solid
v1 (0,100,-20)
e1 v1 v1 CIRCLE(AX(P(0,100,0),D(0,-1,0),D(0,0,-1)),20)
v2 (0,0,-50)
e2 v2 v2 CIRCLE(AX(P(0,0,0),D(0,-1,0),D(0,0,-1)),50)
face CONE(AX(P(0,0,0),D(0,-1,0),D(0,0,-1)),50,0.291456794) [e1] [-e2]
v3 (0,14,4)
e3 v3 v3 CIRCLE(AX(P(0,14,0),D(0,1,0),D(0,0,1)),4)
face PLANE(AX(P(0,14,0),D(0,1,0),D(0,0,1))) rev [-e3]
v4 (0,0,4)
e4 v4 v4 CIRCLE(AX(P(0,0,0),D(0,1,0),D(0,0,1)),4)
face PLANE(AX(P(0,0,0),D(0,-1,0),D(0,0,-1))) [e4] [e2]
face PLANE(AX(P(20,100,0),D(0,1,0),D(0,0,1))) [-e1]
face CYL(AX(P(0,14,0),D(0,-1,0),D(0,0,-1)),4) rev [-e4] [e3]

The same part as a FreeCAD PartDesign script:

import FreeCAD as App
import Part
import Sketcher
from FreeCAD import Vector
Q = App.Units.Quantity


def add_polygon(sketch, points):
    """Adds a closed chain of lines whose ends are joined by coincident constraints."""
    first, n = sketch.GeometryCount, len(points)
    for a, b in zip(points, points[1:] + points[:1]):
        sketch.addGeometry(Part.LineSegment(App.Vector(*a, 0), App.Vector(*b, 0)), False)
    for i in range(n):
        sketch.addConstraint(Sketcher.Constraint("Coincident", first + i, 2, first + (i + 1) % n, 1))

doc = App.newDocument("Part")
params = doc.addObject("Spreadsheet::Sheet", "Params")
for row, (alias, value) in enumerate([
    ("sketch1_width", "50 mm"),
    ("sketch1_width2", "20 mm"),
    ("sketch1_height", "100 mm"),
    ("revolution_angle", "360 deg"),
    ("sketch2_diameter", "8 mm"),
    ("pocket1_length", "14 mm"),
], start=1):
    params.set(f"A{row}", alias)
    params.set(f"B{row}", "=" + value)
    params.setAlias(f"B{row}", alias)

body = doc.addObject("PartDesign::Body", "Body")

# Sketch on XY plane
sketch1 = body.newObject("Sketcher::SketchObject", "Sketch")
sketch1.AttachmentSupport = (doc.getObject("XY_Plane"), [""])
sketch1.MapMode = "FlatFace"
add_polygon(sketch1, [(0, 0), (50, 0), (20, 100), (0, 100)])  # lines 0-3
sketch1.addConstraint([
    Sketcher.Constraint("Horizontal", 0),
    Sketcher.Constraint("Horizontal", 2),
    Sketcher.Constraint("Vertical", 3),
    Sketcher.Constraint("Coincident", 3, 2, -1, 1),
    Sketcher.Constraint("DistanceX", 0, 1, 0, 2, Q("50 mm")),
    Sketcher.Constraint("DistanceX", 2, 2, 2, 1, Q("20 mm")),
    Sketcher.Constraint("DistanceY", 3, 2, 3, 1, Q("100 mm")),
])
sketch1.setExpression("Constraints[8]", "Params.sketch1_width")
sketch1.setExpression("Constraints[9]", "Params.sketch1_width2")
sketch1.setExpression("Constraints[10]", "Params.sketch1_height")
revolution = body.newObject("PartDesign::Revolution", "Revolution")
revolution.Profile = sketch1
revolution.ReferenceAxis = (sketch1, ["V_Axis"])
revolution.setExpression("Angle", "Params.revolution_angle")

# Sketch on XZ plane
sketch2 = body.newObject("Sketcher::SketchObject", "Sketch001")
sketch2.AttachmentSupport = (doc.getObject("XZ_Plane"), [""])
sketch2.MapMode = "FlatFace"
sketch2.addGeometry(Part.Circle(Vector(0, 0, 0), Vector(0, 0, 1), 4), False)
sketch2.addConstraint([
    Sketcher.Constraint("Coincident", 0, 3, -1, 1),
    Sketcher.Constraint("Diameter", 0, Q("8 mm")),
])
sketch2.setExpression("Constraints[1]", "Params.sketch2_diameter")
pocket1 = body.newObject("PartDesign::Pocket", "Pocket")
pocket1.Profile = sketch2
pocket1.setExpression("Length", "Params.pocket1_length")

doc.recompute()
